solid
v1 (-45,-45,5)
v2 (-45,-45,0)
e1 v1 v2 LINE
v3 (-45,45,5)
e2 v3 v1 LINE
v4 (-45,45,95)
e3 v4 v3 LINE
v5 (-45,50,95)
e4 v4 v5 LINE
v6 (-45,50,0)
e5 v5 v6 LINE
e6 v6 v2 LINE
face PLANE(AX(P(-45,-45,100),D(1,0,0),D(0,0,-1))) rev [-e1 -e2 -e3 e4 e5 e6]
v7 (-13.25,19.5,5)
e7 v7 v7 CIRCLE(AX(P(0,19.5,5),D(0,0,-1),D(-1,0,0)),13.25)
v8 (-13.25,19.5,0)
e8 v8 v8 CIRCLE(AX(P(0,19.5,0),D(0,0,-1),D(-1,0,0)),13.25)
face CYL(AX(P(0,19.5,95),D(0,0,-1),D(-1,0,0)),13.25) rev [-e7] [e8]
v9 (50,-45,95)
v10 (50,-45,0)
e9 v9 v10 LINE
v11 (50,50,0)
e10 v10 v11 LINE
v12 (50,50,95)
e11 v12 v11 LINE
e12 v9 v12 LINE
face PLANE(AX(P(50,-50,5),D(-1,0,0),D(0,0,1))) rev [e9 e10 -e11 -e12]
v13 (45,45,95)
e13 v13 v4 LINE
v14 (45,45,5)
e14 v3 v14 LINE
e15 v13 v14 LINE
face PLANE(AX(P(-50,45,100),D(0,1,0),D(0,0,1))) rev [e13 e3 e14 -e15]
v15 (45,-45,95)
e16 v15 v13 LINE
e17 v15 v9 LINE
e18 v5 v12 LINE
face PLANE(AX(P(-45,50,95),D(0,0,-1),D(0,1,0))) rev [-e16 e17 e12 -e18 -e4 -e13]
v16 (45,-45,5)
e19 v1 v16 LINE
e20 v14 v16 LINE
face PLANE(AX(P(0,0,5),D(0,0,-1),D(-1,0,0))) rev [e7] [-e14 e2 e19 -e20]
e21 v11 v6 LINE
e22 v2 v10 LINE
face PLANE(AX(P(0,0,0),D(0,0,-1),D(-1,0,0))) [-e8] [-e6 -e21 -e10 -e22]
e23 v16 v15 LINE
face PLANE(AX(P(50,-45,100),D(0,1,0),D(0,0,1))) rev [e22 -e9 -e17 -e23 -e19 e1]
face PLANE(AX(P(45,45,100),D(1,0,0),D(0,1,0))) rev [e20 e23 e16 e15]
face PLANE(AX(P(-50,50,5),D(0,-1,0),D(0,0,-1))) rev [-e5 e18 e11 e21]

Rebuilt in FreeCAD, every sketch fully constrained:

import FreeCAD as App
import Part
import Sketcher

V = App.Vector


def add_polygon(sketch, points):
    """Adds a closed chain of lines whose ends are joined by coincident constraints."""
    first, n = sketch.GeometryCount, len(points)
    for a, b in zip(points, points[1:] + points[:1]):
        sketch.addGeometry(Part.LineSegment(App.Vector(*a, 0), App.Vector(*b, 0)), False)
    for i in range(n):
        sketch.addConstraint(Sketcher.Constraint("Coincident", first + i, 2, first + (i + 1) % n, 1))

doc = App.newDocument("Part")
body = doc.addObject("PartDesign::Body", "Body")

# Sketch on XY plane
sketch1 = doc.addObject("Sketcher::SketchObject", "Sketch")
body.addObject(sketch1)
sketch1.AttachmentSupport = (doc.XY_Plane, [""])
sketch1.MapMode = "FlatFace"
add_polygon(sketch1, [(-50, 50), (-50, -50), (50, -50), (50, 50)])  # lines 0-3
sketch1.addConstraint(Sketcher.Constraint("Vertical", 0))
sketch1.addConstraint(Sketcher.Constraint("Horizontal", 1))
sketch1.addConstraint(Sketcher.Constraint("Vertical", 2))
sketch1.addConstraint(Sketcher.Constraint("Horizontal", 3))
sketch1.addConstraint(Sketcher.Constraint("Symmetric", 0, 2, 2, 2, -1, 1))
sketch1.addConstraint(Sketcher.Constraint("Equal", 3, 0))
sketch1.addConstraint(Sketcher.Constraint("DistanceX", 1, 1, 1, 2, 100.0))
pad1 = doc.addObject("PartDesign::Pad", "Pad")
body.addObject(pad1)
pad1.Profile = sketch1
pad1.Length = 5

# Sketch on XY plane
sketch2 = doc.addObject("Sketcher::SketchObject", "Sketch001")
body.addObject(sketch2)
sketch2.AttachmentSupport = (doc.XY_Plane, [""])
sketch2.MapMode = "FlatFace"
sketch2.AttachmentOffset = App.Placement(V(0, 0, 5), App.Rotation())
add_polygon(sketch2, [(50, 50), (-50, 50), (-50, 45), (45, 45), (45, -50), (50, -50)])  # lines 0-5
sketch2.addConstraint(Sketcher.Constraint("Horizontal", 0))
sketch2.addConstraint(Sketcher.Constraint("Vertical", 1))
sketch2.addConstraint(Sketcher.Constraint("Horizontal", 2))
sketch2.addConstraint(Sketcher.Constraint("Vertical", 3))
sketch2.addConstraint(Sketcher.Constraint("Horizontal", 4))
sketch2.addConstraint(Sketcher.Constraint("Vertical", 5))
sketch2.addConstraint(Sketcher.Constraint("Symmetric", 0, 2, 4, 2, -1, 1))
sketch2.addConstraint(Sketcher.Constraint("Equal", 4, 1))
sketch2.addConstraint(Sketcher.Constraint("Equal", 2, 3))
sketch2.addConstraint(Sketcher.Constraint("DistanceX", 0, 2, 0, 1, 100.0))
sketch2.addConstraint(Sketcher.Constraint("DistanceX", 2, 1, 2, 2, 95.0))
pad2 = doc.addObject("PartDesign::Pad", "Pad001")
body.addObject(pad2)
pad2.Profile = sketch2
pad2.Length = 95

# Sketch on XY plane
sketch3 = doc.addObject("Sketcher::SketchObject", "Sketch002")
body.addObject(sketch3)
sketch3.AttachmentSupport = (doc.XY_Plane, [""])
sketch3.MapMode = "FlatFace"
sketch3.addGeometry(Part.Circle(V(0, 20, 0), V(0, 0, 1), 13), False)
sketch3.addConstraint(Sketcher.Constraint("PointOnObject", 0, 3, -2))
sketch3.addConstraint(Sketcher.Constraint("Diameter", 0, 26.5))
sketch3.addConstraint(Sketcher.Constraint("DistanceY", -1, 1, 0, 3, 19.5))
pocket1 = doc.addObject("PartDesign::Pocket", "Pocket")
body.addObject(pocket1)
pocket1.Profile = sketch3
pocket1.Length = 95
pocket1.Reversed = True

# Sketch on XY plane
sketch4 = doc.addObject("Sketcher::SketchObject", "Sketch003")
body.addObject(sketch4)
sketch4.AttachmentSupport = (doc.XY_Plane, [""])
sketch4.MapMode = "FlatFace"
add_polygon(sketch4, [(50, -50), (-50, -50), (-50, 50), (-45, 50), (-45, -45), (50, -45)])  # lines 0-5
sketch4.addConstraint(Sketcher.Constraint("Horizontal", 0))
sketch4.addConstraint(Sketcher.Constraint("Vertical", 1))
sketch4.addConstraint(Sketcher.Constraint("Horizontal", 2))
sketch4.addConstraint(Sketcher.Constraint("Vertical", 3))
sketch4.addConstraint(Sketcher.Constraint("Horizontal", 4))
sketch4.addConstraint(Sketcher.Constraint("Vertical", 5))
sketch4.addConstraint(Sketcher.Constraint("Symmetric", 1, 2, 5, 2, -1, 1))
sketch4.addConstraint(Sketcher.Constraint("Equal", 0, 1))
sketch4.addConstraint(Sketcher.Constraint("Equal", 4, 3))
sketch4.addConstraint(Sketcher.Constraint("DistanceX", 0, 2, 0, 1, 100.0))
sketch4.addConstraint(Sketcher.Constraint("DistanceX", 2, 1, 2, 2, 5.0))
pocket2 = doc.addObject("PartDesign::Pocket", "Pocket001")
body.addObject(pocket2)
pocket2.Profile = sketch4
pocket2.Type = "ThroughAll"
pocket2.Reversed = True

# Sketch on YZ plane
sketch5 = doc.addObject("Sketcher::SketchObject", "Sketch004")
body.addObject(sketch5)
sketch5.AttachmentSupport = (doc.YZ_Plane, [""])
sketch5.MapMode = "FlatFace"
sketch5.AttachmentOffset = App.Placement(V(0, 0, 50), App.Rotation())
add_polygon(sketch5, [(50, 100), (-45, 100), (-45, 95), (50, 95)])  # lines 0-3
sketch5.addConstraint(Sketcher.Constraint("Horizontal", 0))
sketch5.addConstraint(Sketcher.Constraint("Vertical", 1))
sketch5.addConstraint(Sketcher.Constraint("Horizontal", 2))
sketch5.addConstraint(Sketcher.Constraint("Vertical", 3))
sketch5.addConstraint(Sketcher.Constraint("DistanceX", 0, 2, 0, 1, 95.0))
sketch5.addConstraint(Sketcher.Constraint("DistanceY", 1, 2, 1, 1, 5.0))
sketch5.addConstraint(Sketcher.Constraint("DistanceX", 0, 2, -1, 1, 45.0))
sketch5.addConstraint(Sketcher.Constraint("DistanceY", -1, 1, 0, 2, 100.0))
pocket3 = doc.addObject("PartDesign::Pocket", "Pocket002")
body.addObject(pocket3)
pocket3.Profile = sketch5
pocket3.Type = "ThroughAll"

doc.recompute()
